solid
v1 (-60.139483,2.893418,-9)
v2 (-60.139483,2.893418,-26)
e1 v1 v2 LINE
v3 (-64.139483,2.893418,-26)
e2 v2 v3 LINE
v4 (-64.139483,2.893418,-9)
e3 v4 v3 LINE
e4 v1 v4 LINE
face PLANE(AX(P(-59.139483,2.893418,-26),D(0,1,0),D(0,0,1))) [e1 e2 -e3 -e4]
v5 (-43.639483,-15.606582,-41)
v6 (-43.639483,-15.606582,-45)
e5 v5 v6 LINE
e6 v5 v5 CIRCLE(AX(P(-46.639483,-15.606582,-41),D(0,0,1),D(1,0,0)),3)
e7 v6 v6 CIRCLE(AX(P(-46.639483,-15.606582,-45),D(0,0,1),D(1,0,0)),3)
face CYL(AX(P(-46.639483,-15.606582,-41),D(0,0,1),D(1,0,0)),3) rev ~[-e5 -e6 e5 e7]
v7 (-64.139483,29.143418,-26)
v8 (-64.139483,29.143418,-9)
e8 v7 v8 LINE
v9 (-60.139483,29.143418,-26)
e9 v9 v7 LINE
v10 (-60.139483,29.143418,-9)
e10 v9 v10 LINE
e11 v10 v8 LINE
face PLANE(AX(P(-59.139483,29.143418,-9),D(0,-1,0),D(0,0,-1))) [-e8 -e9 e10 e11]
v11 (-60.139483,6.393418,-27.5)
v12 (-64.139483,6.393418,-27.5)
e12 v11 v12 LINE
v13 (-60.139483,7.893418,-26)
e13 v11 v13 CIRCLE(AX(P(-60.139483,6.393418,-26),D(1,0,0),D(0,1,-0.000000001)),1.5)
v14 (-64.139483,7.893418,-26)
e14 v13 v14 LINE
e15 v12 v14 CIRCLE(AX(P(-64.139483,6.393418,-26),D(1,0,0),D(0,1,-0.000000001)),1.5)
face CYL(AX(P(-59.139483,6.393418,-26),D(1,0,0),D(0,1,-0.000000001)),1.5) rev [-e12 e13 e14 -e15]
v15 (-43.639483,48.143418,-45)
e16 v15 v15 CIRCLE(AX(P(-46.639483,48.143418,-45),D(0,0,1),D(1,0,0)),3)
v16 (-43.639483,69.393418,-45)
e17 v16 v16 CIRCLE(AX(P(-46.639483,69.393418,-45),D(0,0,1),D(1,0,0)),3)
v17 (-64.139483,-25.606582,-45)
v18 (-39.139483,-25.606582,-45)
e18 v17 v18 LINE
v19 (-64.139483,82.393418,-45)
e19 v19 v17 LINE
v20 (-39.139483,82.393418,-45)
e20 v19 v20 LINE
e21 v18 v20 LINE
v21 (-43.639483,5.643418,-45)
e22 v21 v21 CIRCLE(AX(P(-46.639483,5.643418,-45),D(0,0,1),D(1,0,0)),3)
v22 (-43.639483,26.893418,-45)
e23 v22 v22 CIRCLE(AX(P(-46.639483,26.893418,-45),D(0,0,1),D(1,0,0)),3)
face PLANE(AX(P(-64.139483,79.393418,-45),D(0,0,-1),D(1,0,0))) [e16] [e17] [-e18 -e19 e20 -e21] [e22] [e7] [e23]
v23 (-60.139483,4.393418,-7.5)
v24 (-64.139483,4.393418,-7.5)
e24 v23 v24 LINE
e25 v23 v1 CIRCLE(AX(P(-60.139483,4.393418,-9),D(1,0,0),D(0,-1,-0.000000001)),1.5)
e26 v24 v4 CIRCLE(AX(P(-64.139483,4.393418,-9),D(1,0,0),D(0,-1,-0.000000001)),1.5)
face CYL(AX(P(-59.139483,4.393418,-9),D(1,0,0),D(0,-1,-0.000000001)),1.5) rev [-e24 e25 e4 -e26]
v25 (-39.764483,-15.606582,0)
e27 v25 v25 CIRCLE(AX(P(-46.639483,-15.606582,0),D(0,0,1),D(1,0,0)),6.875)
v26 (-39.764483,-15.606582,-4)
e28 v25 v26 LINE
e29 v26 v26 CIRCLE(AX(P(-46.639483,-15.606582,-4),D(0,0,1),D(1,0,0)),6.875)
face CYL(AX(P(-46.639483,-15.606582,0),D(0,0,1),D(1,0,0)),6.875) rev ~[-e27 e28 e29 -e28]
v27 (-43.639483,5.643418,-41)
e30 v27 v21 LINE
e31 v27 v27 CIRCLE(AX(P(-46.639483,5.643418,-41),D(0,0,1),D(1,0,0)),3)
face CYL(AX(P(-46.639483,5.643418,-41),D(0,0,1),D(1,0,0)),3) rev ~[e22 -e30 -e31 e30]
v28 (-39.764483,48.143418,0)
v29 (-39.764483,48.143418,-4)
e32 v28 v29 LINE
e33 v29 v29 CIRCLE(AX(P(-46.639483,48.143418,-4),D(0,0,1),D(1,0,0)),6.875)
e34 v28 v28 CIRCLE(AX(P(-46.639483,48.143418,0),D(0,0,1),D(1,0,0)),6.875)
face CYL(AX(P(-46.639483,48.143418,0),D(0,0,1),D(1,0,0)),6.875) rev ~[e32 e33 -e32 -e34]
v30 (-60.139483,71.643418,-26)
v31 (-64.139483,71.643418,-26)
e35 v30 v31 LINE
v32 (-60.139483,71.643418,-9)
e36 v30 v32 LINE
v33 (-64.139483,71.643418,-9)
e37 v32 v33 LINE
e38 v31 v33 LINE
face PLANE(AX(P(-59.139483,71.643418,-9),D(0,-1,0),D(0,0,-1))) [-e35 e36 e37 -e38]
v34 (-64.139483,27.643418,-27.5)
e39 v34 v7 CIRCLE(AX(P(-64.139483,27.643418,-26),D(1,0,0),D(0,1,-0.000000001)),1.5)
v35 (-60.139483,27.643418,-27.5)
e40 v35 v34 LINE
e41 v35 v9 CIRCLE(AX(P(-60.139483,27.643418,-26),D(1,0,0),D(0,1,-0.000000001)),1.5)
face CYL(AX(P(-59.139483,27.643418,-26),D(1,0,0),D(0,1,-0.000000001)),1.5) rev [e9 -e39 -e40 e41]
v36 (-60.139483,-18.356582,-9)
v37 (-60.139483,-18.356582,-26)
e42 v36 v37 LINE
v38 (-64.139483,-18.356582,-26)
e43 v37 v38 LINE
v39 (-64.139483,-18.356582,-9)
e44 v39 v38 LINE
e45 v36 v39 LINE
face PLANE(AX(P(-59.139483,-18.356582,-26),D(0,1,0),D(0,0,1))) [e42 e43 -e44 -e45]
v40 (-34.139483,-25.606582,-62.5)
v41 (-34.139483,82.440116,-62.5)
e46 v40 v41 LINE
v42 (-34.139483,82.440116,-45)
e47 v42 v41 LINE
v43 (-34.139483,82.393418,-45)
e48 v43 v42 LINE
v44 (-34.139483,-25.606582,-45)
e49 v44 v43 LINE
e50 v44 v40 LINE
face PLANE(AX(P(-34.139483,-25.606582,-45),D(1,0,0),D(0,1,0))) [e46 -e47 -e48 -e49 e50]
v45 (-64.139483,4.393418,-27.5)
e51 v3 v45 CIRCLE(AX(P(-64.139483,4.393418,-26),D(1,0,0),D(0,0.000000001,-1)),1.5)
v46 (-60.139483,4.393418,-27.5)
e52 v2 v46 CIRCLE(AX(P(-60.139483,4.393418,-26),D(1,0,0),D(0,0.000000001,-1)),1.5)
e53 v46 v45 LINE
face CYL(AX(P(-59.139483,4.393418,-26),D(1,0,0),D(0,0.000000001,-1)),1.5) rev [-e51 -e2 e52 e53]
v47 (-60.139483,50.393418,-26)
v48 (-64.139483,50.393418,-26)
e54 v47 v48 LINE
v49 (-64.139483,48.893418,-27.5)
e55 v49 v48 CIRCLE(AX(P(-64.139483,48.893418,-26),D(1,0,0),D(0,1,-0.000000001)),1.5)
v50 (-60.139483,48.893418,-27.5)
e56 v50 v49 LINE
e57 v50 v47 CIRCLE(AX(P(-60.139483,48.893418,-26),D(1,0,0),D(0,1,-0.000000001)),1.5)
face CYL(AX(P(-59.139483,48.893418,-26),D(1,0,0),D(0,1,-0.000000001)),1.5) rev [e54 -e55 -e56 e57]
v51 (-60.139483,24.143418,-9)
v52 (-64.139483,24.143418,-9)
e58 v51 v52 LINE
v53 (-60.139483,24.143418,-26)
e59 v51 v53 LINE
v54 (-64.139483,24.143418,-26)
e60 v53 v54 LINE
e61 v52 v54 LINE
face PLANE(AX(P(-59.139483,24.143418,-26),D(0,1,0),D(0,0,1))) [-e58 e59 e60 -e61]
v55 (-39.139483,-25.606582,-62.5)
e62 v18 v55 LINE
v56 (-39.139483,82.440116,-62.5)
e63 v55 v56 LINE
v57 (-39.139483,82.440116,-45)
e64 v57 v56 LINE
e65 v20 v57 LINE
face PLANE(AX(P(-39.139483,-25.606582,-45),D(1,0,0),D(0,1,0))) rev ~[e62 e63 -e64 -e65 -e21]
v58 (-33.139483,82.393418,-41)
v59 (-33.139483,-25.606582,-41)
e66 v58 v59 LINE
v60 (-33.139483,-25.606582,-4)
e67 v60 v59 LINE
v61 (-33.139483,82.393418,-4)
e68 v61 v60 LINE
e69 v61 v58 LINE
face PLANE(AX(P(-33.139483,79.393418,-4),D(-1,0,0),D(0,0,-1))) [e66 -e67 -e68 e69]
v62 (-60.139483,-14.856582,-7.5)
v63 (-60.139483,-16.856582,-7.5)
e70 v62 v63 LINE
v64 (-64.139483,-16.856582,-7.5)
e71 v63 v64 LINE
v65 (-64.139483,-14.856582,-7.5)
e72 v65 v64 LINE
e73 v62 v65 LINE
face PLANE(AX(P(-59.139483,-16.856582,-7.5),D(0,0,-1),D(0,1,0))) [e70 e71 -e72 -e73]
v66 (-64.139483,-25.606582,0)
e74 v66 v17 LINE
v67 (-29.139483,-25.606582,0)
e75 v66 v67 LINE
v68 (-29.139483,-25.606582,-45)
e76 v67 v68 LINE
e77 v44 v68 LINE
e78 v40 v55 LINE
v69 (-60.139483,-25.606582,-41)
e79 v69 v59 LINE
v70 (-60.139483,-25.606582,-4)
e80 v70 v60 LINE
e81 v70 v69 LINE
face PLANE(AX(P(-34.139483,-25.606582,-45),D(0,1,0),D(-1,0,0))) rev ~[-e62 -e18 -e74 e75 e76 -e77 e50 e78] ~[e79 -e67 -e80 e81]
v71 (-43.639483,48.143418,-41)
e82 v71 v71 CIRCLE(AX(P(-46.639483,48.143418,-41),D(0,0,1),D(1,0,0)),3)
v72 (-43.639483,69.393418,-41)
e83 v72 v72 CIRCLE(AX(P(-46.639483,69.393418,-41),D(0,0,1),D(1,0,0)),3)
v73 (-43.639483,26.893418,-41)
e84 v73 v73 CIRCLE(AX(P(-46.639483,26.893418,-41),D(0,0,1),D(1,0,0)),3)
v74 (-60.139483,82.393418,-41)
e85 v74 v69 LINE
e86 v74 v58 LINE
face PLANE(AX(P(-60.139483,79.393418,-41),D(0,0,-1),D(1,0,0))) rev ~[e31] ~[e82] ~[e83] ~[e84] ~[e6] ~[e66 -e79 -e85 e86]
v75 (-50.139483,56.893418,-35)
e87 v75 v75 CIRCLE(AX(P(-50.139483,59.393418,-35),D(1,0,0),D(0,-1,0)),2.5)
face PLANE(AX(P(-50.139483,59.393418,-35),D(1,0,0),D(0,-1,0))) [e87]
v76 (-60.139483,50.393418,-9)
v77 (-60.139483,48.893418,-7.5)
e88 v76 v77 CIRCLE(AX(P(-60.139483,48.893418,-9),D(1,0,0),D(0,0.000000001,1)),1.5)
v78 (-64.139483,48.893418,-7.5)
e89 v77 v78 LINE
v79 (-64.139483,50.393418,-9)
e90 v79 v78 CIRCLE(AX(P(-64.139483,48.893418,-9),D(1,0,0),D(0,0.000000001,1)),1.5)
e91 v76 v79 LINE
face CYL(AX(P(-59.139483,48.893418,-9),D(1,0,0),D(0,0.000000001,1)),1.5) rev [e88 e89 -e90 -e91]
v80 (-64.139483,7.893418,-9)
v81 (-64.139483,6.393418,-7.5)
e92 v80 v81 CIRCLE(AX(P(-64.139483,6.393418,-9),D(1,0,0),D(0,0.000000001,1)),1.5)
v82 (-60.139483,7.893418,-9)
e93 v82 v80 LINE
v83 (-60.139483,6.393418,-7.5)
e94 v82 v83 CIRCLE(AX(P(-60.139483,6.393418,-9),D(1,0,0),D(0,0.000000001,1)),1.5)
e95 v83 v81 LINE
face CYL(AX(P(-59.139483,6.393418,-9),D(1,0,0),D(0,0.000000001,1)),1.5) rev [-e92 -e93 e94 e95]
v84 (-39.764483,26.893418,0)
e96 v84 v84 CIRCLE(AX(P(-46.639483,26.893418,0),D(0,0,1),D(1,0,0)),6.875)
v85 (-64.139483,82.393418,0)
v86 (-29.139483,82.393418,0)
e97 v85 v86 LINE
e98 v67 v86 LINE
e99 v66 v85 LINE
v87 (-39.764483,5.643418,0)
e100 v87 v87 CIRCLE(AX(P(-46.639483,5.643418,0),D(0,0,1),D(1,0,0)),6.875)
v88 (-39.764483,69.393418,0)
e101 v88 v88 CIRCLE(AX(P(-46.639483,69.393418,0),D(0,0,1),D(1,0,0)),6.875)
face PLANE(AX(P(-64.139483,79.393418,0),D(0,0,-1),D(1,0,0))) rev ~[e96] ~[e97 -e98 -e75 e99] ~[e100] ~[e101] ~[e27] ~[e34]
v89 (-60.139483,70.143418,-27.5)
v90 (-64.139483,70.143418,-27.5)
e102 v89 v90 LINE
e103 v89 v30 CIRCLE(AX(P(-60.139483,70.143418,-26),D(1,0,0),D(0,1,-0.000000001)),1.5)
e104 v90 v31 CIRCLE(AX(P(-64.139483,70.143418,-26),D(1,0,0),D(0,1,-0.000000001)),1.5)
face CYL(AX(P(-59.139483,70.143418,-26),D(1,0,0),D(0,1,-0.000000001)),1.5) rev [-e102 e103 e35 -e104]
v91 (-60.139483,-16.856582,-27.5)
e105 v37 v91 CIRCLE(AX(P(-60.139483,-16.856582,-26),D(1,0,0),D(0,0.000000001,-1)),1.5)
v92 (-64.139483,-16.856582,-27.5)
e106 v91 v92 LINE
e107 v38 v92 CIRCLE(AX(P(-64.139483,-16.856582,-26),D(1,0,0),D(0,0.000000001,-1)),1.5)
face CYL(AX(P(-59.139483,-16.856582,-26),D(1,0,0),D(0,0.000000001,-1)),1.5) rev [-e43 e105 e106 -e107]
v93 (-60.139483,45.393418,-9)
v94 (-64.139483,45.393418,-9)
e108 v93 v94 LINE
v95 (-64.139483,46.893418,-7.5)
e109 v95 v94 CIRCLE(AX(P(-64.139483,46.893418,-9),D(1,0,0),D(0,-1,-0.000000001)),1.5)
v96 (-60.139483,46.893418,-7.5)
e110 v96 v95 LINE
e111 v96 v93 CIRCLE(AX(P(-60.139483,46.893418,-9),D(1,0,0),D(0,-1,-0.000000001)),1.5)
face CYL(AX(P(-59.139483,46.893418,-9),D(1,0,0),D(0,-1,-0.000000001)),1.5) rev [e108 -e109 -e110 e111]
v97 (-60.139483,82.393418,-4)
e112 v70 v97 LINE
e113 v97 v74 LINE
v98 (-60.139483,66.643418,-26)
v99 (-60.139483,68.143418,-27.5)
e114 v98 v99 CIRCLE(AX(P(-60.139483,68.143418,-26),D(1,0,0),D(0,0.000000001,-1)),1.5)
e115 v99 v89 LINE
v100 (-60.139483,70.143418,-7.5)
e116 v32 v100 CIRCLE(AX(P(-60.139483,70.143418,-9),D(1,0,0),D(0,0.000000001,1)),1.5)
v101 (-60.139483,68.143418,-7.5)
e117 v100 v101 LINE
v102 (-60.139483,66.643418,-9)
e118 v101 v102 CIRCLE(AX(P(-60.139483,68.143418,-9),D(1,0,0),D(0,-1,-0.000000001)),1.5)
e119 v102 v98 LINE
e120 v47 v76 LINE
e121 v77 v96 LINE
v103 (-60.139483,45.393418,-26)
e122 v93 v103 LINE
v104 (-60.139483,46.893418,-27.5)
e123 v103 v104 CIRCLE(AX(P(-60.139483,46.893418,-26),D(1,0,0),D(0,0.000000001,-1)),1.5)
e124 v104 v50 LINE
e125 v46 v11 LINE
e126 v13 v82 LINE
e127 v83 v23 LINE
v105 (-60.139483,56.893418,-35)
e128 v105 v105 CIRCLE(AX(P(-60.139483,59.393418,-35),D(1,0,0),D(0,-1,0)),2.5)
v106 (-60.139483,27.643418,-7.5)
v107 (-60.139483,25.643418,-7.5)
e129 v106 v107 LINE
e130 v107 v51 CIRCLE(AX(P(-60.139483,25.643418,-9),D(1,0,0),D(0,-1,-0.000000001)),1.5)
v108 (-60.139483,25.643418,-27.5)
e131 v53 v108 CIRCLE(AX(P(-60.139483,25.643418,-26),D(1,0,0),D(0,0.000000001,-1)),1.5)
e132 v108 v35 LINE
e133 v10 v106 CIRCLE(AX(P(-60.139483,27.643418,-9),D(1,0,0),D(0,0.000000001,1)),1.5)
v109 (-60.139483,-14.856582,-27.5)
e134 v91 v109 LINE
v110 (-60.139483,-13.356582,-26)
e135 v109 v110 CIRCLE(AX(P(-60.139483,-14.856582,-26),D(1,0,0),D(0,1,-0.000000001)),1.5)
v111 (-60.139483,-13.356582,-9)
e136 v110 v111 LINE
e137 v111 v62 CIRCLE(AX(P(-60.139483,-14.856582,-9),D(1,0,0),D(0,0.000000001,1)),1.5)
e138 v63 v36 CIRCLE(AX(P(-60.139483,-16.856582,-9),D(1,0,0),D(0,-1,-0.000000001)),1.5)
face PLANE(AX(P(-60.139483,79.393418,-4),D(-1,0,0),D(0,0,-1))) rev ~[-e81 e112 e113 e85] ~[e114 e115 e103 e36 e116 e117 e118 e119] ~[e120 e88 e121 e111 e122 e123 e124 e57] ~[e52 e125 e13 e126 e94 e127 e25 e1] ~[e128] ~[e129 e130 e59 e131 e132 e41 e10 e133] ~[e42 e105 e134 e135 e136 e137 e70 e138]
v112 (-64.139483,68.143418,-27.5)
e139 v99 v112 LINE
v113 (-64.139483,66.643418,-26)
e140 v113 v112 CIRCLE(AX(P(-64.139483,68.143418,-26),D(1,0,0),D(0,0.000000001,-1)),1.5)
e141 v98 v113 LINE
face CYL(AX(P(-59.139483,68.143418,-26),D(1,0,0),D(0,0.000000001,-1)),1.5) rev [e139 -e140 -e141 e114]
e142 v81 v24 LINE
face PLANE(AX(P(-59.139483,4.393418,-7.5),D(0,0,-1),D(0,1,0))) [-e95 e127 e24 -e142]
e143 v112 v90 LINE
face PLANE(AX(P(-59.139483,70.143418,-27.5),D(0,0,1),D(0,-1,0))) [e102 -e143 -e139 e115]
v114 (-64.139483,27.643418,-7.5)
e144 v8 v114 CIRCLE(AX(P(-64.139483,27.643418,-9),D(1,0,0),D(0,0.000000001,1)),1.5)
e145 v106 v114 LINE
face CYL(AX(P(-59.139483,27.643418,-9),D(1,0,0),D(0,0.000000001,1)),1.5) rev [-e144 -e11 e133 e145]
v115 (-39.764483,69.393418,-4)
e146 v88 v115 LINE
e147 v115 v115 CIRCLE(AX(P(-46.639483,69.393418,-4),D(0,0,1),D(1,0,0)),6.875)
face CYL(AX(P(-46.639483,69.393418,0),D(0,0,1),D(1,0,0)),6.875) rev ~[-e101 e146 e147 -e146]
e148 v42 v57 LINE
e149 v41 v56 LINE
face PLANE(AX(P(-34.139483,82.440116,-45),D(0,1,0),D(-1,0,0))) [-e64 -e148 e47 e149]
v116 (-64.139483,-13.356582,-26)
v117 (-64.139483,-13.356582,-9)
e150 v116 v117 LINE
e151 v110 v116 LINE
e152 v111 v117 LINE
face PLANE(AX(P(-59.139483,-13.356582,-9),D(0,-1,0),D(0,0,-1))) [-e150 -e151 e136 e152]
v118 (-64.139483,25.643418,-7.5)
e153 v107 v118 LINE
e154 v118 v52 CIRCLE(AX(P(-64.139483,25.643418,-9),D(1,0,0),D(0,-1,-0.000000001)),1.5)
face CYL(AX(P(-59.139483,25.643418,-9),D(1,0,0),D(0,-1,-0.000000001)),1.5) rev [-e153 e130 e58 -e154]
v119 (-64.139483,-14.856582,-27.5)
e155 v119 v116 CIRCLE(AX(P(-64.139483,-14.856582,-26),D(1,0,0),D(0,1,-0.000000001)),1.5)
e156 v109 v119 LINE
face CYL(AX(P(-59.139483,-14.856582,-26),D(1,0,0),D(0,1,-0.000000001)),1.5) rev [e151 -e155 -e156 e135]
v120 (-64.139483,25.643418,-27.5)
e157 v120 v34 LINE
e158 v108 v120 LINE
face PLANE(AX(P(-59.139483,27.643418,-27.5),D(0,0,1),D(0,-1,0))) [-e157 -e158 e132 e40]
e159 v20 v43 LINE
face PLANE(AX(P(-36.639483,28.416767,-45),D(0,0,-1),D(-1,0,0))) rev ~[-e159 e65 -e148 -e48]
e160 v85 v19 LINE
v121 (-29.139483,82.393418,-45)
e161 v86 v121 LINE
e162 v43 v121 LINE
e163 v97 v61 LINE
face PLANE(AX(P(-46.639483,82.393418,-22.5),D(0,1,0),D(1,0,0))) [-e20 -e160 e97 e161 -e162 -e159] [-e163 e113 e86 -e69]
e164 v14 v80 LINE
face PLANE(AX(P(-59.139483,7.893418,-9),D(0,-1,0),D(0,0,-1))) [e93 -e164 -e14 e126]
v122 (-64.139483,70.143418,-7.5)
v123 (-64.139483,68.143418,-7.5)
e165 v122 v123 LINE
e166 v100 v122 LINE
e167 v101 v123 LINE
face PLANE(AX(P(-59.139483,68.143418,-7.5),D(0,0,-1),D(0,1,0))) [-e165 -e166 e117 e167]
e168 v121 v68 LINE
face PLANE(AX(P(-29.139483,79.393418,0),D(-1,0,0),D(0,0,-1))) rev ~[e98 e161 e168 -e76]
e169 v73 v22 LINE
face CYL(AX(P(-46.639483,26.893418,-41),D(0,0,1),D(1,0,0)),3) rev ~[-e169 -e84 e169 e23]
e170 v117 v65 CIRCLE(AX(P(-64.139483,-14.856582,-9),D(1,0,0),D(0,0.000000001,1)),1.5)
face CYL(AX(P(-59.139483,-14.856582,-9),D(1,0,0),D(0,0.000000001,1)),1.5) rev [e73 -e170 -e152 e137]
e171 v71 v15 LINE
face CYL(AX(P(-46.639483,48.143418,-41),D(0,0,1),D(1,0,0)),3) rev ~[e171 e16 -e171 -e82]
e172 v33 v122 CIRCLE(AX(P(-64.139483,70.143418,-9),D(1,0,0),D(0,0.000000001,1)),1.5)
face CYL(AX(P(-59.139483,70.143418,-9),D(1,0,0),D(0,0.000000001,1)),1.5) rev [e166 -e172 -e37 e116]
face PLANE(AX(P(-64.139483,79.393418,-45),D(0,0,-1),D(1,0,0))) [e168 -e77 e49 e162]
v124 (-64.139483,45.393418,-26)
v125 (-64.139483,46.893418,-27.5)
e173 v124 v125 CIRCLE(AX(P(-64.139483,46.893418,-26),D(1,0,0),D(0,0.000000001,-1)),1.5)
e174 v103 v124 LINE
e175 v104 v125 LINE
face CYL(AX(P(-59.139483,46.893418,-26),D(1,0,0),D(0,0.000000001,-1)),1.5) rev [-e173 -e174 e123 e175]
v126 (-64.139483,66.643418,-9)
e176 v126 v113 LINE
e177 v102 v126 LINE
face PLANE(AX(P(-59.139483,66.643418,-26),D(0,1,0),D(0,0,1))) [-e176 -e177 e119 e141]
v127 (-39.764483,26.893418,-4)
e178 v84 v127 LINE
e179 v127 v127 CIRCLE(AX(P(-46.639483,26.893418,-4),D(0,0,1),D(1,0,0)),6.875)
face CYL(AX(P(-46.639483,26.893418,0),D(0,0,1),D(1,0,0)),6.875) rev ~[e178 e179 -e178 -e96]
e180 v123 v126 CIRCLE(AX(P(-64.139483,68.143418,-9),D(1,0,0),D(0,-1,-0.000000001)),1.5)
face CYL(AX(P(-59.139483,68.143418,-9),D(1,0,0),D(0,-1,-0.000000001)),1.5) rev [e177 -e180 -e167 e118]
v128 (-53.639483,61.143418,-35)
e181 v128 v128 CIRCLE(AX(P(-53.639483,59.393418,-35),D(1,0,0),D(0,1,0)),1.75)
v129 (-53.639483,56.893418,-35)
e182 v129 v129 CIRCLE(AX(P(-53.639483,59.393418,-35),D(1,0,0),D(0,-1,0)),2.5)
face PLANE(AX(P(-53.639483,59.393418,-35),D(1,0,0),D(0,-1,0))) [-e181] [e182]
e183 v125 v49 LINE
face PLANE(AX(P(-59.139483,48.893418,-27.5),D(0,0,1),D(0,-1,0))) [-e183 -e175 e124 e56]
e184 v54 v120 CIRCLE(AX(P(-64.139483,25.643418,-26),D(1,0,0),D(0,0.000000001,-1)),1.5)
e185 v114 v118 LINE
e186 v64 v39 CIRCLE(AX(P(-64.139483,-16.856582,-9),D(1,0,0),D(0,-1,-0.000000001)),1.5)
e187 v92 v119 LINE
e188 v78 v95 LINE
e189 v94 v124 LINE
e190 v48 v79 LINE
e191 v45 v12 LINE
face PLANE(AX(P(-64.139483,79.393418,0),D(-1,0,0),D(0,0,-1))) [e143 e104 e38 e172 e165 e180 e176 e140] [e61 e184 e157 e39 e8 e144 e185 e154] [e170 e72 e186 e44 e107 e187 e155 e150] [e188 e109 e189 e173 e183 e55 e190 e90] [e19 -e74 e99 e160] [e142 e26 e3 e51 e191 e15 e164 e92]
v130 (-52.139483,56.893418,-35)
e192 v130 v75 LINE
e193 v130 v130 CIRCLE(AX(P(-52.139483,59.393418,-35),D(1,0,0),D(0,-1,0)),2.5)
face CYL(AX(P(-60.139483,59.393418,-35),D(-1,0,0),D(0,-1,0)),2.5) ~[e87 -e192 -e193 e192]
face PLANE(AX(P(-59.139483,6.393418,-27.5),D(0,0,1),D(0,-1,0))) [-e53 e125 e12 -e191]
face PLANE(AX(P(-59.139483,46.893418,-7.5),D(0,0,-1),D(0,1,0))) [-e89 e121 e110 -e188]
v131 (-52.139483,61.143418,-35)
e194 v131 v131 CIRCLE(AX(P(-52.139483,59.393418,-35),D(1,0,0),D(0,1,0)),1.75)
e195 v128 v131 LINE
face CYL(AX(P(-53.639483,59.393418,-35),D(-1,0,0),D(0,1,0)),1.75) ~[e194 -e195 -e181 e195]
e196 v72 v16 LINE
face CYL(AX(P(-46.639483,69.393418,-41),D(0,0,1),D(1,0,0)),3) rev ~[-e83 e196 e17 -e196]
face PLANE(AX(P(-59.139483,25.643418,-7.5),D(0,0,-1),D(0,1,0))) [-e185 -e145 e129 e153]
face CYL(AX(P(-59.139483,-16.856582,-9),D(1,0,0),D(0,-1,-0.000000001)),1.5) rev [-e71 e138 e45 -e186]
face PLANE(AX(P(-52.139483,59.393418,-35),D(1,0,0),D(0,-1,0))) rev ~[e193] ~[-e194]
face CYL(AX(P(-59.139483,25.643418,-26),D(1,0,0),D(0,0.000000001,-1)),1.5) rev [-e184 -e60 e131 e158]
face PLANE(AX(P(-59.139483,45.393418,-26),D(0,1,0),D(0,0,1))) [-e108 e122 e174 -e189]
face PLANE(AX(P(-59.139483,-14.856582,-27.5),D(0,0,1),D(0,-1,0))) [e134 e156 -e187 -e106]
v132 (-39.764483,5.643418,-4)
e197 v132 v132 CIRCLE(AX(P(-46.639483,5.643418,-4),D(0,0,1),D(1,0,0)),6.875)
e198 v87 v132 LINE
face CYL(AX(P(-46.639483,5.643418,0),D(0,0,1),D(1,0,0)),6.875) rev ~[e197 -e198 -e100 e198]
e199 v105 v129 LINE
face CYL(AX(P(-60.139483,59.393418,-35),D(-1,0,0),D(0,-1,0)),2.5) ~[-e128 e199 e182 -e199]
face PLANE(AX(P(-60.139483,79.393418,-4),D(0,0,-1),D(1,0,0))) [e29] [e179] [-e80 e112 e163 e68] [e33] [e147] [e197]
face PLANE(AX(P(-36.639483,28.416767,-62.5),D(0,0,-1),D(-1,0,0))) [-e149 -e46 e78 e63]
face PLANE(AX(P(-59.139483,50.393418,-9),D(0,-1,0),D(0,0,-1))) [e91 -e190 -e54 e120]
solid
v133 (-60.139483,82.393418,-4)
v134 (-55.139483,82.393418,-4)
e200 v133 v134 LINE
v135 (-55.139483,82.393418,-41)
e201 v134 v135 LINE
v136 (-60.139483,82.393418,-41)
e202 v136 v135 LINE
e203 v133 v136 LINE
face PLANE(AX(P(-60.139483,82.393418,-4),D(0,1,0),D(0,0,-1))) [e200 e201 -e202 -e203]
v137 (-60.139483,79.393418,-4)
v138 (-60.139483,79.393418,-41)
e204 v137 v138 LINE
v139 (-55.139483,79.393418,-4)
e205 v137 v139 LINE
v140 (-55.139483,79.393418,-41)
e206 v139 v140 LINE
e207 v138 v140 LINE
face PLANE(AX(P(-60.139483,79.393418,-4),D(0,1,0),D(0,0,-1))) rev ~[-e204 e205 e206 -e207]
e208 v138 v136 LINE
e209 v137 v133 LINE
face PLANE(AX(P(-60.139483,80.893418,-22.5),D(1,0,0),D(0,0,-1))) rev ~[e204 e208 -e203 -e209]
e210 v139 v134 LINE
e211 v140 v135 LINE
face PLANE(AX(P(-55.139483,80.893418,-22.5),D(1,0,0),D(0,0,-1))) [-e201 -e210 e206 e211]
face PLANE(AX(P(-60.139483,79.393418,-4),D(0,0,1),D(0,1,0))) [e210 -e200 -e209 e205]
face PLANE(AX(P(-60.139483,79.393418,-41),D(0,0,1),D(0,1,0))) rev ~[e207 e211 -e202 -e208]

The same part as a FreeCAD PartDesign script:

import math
import FreeCAD as App
import Part
import Sketcher
from FreeCAD import Vector


def add_polygon(sketch, points):
    """Adds a closed chain of lines whose ends are joined by coincident constraints."""
    first, n = sketch.GeometryCount, len(points)
    for a, b in zip(points, points[1:] + points[:1]):
        sketch.addGeometry(Part.LineSegment(App.Vector(*a, 0), App.Vector(*b, 0)), False)
    for i in range(n):
        sketch.addConstraint(Sketcher.Constraint("Coincident", first + i, 2, first + (i + 1) % n, 1))

doc = App.newDocument("Part")
body = doc.addObject("PartDesign::Body", "Body")

sketch1 = body.newObject("Sketcher::SketchObject", "Sketch")
sketch1.AttachmentSupport = (doc.getObject("XY_Plane"), [""])
sketch1.MapMode = "FlatFace"
add_polygon(sketch1, [(-64, 79), (-64, -26), (-29, -26), (-29, 79)])
sketch1.addConstraint(Sketcher.Constraint("Vertical", 0))
sketch1.addConstraint(Sketcher.Constraint("Horizontal", 1))
sketch1.addConstraint(Sketcher.Constraint("Vertical", 2))
sketch1.addConstraint(Sketcher.Constraint("Horizontal", 3))
sketch1.addConstraint(Sketcher.Constraint("DistanceX", 1, 1, 1, 2, 35.0))
sketch1.addConstraint(Sketcher.Constraint("DistanceY", 0, 2, 0, 1, 105.0))
sketch1.addConstraint(Sketcher.Constraint("DistanceY", 0, 2, -1, 1, 25.606582))
sketch1.addConstraint(Sketcher.Constraint("DistanceX", 0, 2, -1, 1, 64.139483))
pad1 = body.newObject("PartDesign::Pad", "Pad")
pad1.Profile = sketch1
pad1.Length = 45
pad1.Reversed = True

sketch2 = body.newObject("Sketcher::SketchObject", "Sketch001")
sketch2.AttachmentSupport = (doc.getObject("XZ_Plane"), [""])
sketch2.MapMode = "FlatFace"
sketch2.AttachmentOffset = App.Placement(Vector(0, 0, -79.393418), App.Rotation())
add_polygon(sketch2, [(-60, -41), (-60, -4), (-33, -4), (-33, -41)])
sketch2.addConstraint(Sketcher.Constraint("Vertical", 0))
sketch2.addConstraint(Sketcher.Constraint("Horizontal", 1))
sketch2.addConstraint(Sketcher.Constraint("Vertical", 2))
sketch2.addConstraint(Sketcher.Constraint("Horizontal", 3))
sketch2.addConstraint(Sketcher.Constraint("DistanceX", 1, 1, 1, 2, 27.0))
sketch2.addConstraint(Sketcher.Constraint("DistanceY", 0, 1, 0, 2, 37.0))
sketch2.addConstraint(Sketcher.Constraint("DistanceY", 0, 2, -1, 1, 4.0))
sketch2.addConstraint(Sketcher.Constraint("DistanceX", 0, 2, -1, 1, 60.139483))
pocket1 = body.newObject("PartDesign::Pocket", "Pocket")
pocket1.Profile = sketch2
pocket1.Type = "UpToFirst"
pocket1.Reversed = True

sketch3 = body.newObject("Sketcher::SketchObject", "Sketch002")
sketch3.AttachmentSupport = (doc.getObject("XY_Plane"), [""])
sketch3.MapMode = "FlatFace"
sketch3.addGeometry(Part.Circle(Vector(-47, 69, 0), Vector(0, 0, 1), 7), False)
sketch3.addGeometry(Part.Circle(Vector(-47, 48, 0), Vector(0, 0, 1), 7), False)
sketch3.addGeometry(Part.Circle(Vector(-47, 27, 0), Vector(0, 0, 1), 7), False)
sketch3.addGeometry(Part.Circle(Vector(-47, 6, 0), Vector(0, 0, 1), 7), False)
sketch3.addGeometry(Part.Circle(Vector(-47, -16, 0), Vector(0, 0, 1), 7), False)
sketch3.addConstraint(Sketcher.Constraint("Equal", 0, 1))
sketch3.addConstraint(Sketcher.Constraint("Equal", 1, 2))
sketch3.addConstraint(Sketcher.Constraint("Equal", 2, 3))
sketch3.addConstraint(Sketcher.Constraint("Equal", 3, 4))
sketch3.addConstraint(Sketcher.Constraint("Vertical", 0, 3, 1, 3))
sketch3.addConstraint(Sketcher.Constraint("Vertical", 1, 3, 2, 3))
sketch3.addConstraint(Sketcher.Constraint("Vertical", 2, 3, 3, 3))
sketch3.addConstraint(Sketcher.Constraint("Vertical", 3, 3, 4, 3))
sketch3.addConstraint(Sketcher.Constraint("Diameter", 0, 13.75))
sketch3.addConstraint(Sketcher.Constraint("DistanceY", 4, 3, 0, 3, 85.0))
sketch3.addConstraint(Sketcher.Constraint("DistanceY", 2, 3, 0, 3, 42.5))
sketch3.addConstraint(Sketcher.Constraint("DistanceY", 3, 3, 1, 3, 42.5))
sketch3.addConstraint(Sketcher.Constraint("DistanceY", 1, 3, 0, 3, 21.25))
sketch3.addConstraint(Sketcher.Constraint("DistanceY", -1, 1, 0, 3, 69.393418))
sketch3.addConstraint(Sketcher.Constraint("DistanceX", 0, 3, -1, 1, 46.639483))
pocket2 = body.newObject("PartDesign::Pocket", "Pocket001")
pocket2.Profile = sketch3
pocket2.Length = 10

sketch4 = body.newObject("Sketcher::SketchObject", "Sketch003")
sketch4.AttachmentSupport = (doc.getObject("YZ_Plane"), [""])
sketch4.MapMode = "FlatFace"
sketch4.AttachmentOffset = App.Placement(Vector(0, 0, -60.139483), App.Rotation())
sketch4.addGeometry(Part.Circle(Vector(59.4, -35, 0), Vector(0, 0, 1), 2.5), False)
sketch4.addConstraint(Sketcher.Constraint("Diameter", 0, 5.0))
sketch4.addConstraint(Sketcher.Constraint("DistanceY", 0, 3, -1, 1, 35.0))
sketch4.addConstraint(Sketcher.Constraint("DistanceX", -1, 1, 0, 3, 59.393418))
pad2 = body.newObject("PartDesign::Pad", "Pad001")
pad2.Profile = sketch4
pad2.Length = 10

sketch5 = body.newObject("Sketcher::SketchObject", "Sketch004")
sketch5.AttachmentSupport = (doc.getObject("YZ_Plane"), [""])
sketch5.MapMode = "FlatFace"
sketch5.AttachmentOffset = App.Placement(Vector(0, 0, -53.639483), App.Rotation())
sketch5.addGeometry(Part.Circle(Vector(59.4, -35, 0), Vector(0, 0, 1), 2.5), False)
sketch5.addGeometry(Part.Circle(Vector(59.4, -35, 0), Vector(0, 0, 1), 1.8), False)
sketch5.addConstraint(Sketcher.Constraint("Coincident", 1, 3, 0, 3))
sketch5.addConstraint(Sketcher.Constraint("Diameter", 0, 5.0))
sketch5.addConstraint(Sketcher.Constraint("Diameter", 1, 3.5))
sketch5.addConstraint(Sketcher.Constraint("DistanceY", 0, 3, -1, 1, 35.0))
sketch5.addConstraint(Sketcher.Constraint("DistanceX", -1, 1, 0, 3, 59.393418))
pocket3 = body.newObject("PartDesign::Pocket", "Pocket002")
pocket3.Profile = sketch5
pocket3.Length = 1.5
pocket3.Reversed = True

sketch6 = body.newObject("Sketcher::SketchObject", "Sketch005")
sketch6.AttachmentSupport = (doc.getObject("XZ_Plane"), [""])
sketch6.MapMode = "FlatFace"
sketch6.AttachmentOffset = App.Placement(Vector(0, 0, -79.393418), App.Rotation())
add_polygon(sketch6, [(-64, -45), (-64, 0), (-29, 0), (-29, -45)])
add_polygon(sketch6, [(-33, -4), (-60, -4), (-60, -41), (-33, -41)])
sketch6.addConstraint(Sketcher.Constraint("Vertical", 0))
sketch6.addConstraint(Sketcher.Constraint("Horizontal", 1))
sketch6.addConstraint(Sketcher.Constraint("Vertical", 2))
sketch6.addConstraint(Sketcher.Constraint("Horizontal", 3))
sketch6.addConstraint(Sketcher.Constraint("Horizontal", 4))
sketch6.addConstraint(Sketcher.Constraint("Vertical", 5))
sketch6.addConstraint(Sketcher.Constraint("Horizontal", 6))
sketch6.addConstraint(Sketcher.Constraint("Vertical", 7))
sketch6.addConstraint(Sketcher.Constraint("PointOnObject", 0, 2, -1))
sketch6.addConstraint(Sketcher.Constraint("DistanceX", 1, 1, 1, 2, 35.0))
sketch6.addConstraint(Sketcher.Constraint("DistanceX", 4, 2, 4, 1, 27.0))
sketch6.addConstraint(Sketcher.Constraint("DistanceY", 0, 1, 0, 2, 45.0))
sketch6.addConstraint(Sketcher.Constraint("DistanceY", 5, 2, 5, 1, 37.0))
sketch6.addConstraint(Sketcher.Constraint("DistanceY", 4, 2, -1, 1, 4.0))
sketch6.addConstraint(Sketcher.Constraint("DistanceX", 0, 2, 4, 2, 4.0))
sketch6.addConstraint(Sketcher.Constraint("DistanceX", 0, 2, -1, 1, 64.139483))
pad3 = body.newObject("PartDesign::Pad", "Pad002")
pad3.Profile = sketch6
pad3.Length = 3
pad3.Reversed = True

sketch7 = body.newObject("Sketcher::SketchObject", "Sketch006")
sketch7.AttachmentSupport = (doc.getObject("XY_Plane"), [""])
sketch7.MapMode = "FlatFace"
sketch7.AttachmentOffset = App.Placement(Vector(0, 0, -41), App.Rotation())
sketch7.addGeometry(Part.Circle(Vector(-46.6, 69.4, 0), Vector(0, 0, 1), 3), False)
sketch7.addGeometry(Part.Circle(Vector(-46.6, 48.1, 0), Vector(0, 0, 1), 3), False)
sketch7.addGeometry(Part.Circle(Vector(-46.6, 26.9, 0), Vector(0, 0, 1), 3), False)
sketch7.addGeometry(Part.Circle(Vector(-46.6, 5.6, 0), Vector(0, 0, 1), 3), False)
sketch7.addGeometry(Part.Circle(Vector(-46.6, -15.6, 0), Vector(0, 0, 1), 3), False)
sketch7.addConstraint(Sketcher.Constraint("Equal", 0, 1))
sketch7.addConstraint(Sketcher.Constraint("Equal", 1, 2))
sketch7.addConstraint(Sketcher.Constraint("Equal", 2, 3))
sketch7.addConstraint(Sketcher.Constraint("Equal", 3, 4))
sketch7.addConstraint(Sketcher.Constraint("Vertical", 0, 3, 1, 3))
sketch7.addConstraint(Sketcher.Constraint("Vertical", 1, 3, 2, 3))
sketch7.addConstraint(Sketcher.Constraint("Vertical", 2, 3, 3, 3))
sketch7.addConstraint(Sketcher.Constraint("Vertical", 3, 3, 4, 3))
sketch7.addConstraint(Sketcher.Constraint("Diameter", 0, 6.0))
sketch7.addConstraint(Sketcher.Constraint("DistanceY", 4, 3, 0, 3, 85.0))
sketch7.addConstraint(Sketcher.Constraint("DistanceY", 2, 3, 0, 3, 42.5))
sketch7.addConstraint(Sketcher.Constraint("DistanceY", 3, 3, 1, 3, 42.5))
sketch7.addConstraint(Sketcher.Constraint("DistanceY", 1, 3, 0, 3, 21.25))
sketch7.addConstraint(Sketcher.Constraint("DistanceY", -1, 1, 0, 3, 69.393418))
sketch7.addConstraint(Sketcher.Constraint("DistanceX", 0, 3, -1, 1, 46.639483))
pocket4 = body.newObject("PartDesign::Pocket", "Pocket003")
pocket4.Profile = sketch7
pocket4.Length = 10

sketch8 = body.newObject("Sketcher::SketchObject", "Sketch007")
sketch8.AttachmentSupport = (doc.getObject("YZ_Plane"), [""])
sketch8.MapMode = "FlatFace"
sketch8.AttachmentOffset = App.Placement(Vector(0, 0, -59.139483), App.Rotation())
sketch8.addGeometry(Part.LineSegment(Vector(7.9, -26, 0), Vector(7.9, -9, 0)), False)
sketch8.addGeometry(Part.ArcOfCircle(Part.Circle(Vector(6.4, -9, 0), Vector(0, 0, 1), 1.5), math.radians(0), math.radians(90)), False)
sketch8.addGeometry(Part.LineSegment(Vector(6.4, -7.5, 0), Vector(4.4, -7.5, 0)), False)
sketch8.addGeometry(Part.ArcOfCircle(Part.Circle(Vector(4.4, -9, 0), Vector(0, 0, 1), 1.5), math.radians(90), math.radians(180)), False)
sketch8.addGeometry(Part.LineSegment(Vector(2.9, -9, 0), Vector(2.9, -26, 0)), False)
sketch8.addGeometry(Part.ArcOfCircle(Part.Circle(Vector(4.4, -26, 0), Vector(0, 0, 1), 1.5), math.radians(180), math.radians(270)), False)
sketch8.addGeometry(Part.LineSegment(Vector(4.4, -27.5, 0), Vector(6.4, -27.5, 0)), False)
sketch8.addGeometry(Part.ArcOfCircle(Part.Circle(Vector(6.4, -26, 0), Vector(0, 0, 1), 1.5), math.radians(-90), math.radians(0)), False)
sketch8.addGeometry(Part.LineSegment(Vector(29.1, -26, 0), Vector(29.1, -9, 0)), False)
sketch8.addGeometry(Part.ArcOfCircle(Part.Circle(Vector(27.6, -9, 0), Vector(0, 0, 1), 1.5), math.radians(0), math.radians(90)), False)
sketch8.addGeometry(Part.LineSegment(Vector(27.6, -7.5, 0), Vector(25.6, -7.5, 0)), False)
sketch8.addGeometry(Part.ArcOfCircle(Part.Circle(Vector(25.6, -9, 0), Vector(0, 0, 1), 1.5), math.radians(90), math.radians(180)), False)
sketch8.addGeometry(Part.LineSegment(Vector(24.1, -9, 0), Vector(24.1, -26, 0)), False)
sketch8.addGeometry(Part.ArcOfCircle(Part.Circle(Vector(25.6, -26, 0), Vector(0, 0, 1), 1.5), math.radians(180), math.radians(270)), False)
sketch8.addGeometry(Part.LineSegment(Vector(25.6, -27.5, 0), Vector(27.6, -27.5, 0)), False)
sketch8.addGeometry(Part.ArcOfCircle(Part.Circle(Vector(27.6, -26, 0), Vector(0, 0, 1), 1.5), math.radians(-90), math.radians(0)), False)
sketch8.addGeometry(Part.LineSegment(Vector(50.4, -26, 0), Vector(50.4, -9, 0)), False)
sketch8.addGeometry(Part.ArcOfCircle(Part.Circle(Vector(48.9, -9, 0), Vector(0, 0, 1), 1.5), math.radians(0), math.radians(90)), False)
sketch8.addGeometry(Part.LineSegment(Vector(48.9, -7.5, 0), Vector(46.9, -7.5, 0)), False)
sketch8.addGeometry(Part.ArcOfCircle(Part.Circle(Vector(46.9, -9, 0), Vector(0, 0, 1), 1.5), math.radians(90), math.radians(180)), False)
sketch8.addGeometry(Part.LineSegment(Vector(45.4, -9, 0), Vector(45.4, -26, 0)), False)
sketch8.addGeometry(Part.ArcOfCircle(Part.Circle(Vector(46.9, -26, 0), Vector(0, 0, 1), 1.5), math.radians(180), math.radians(270)), False)
sketch8.addGeometry(Part.LineSegment(Vector(46.9, -27.5, 0), Vector(48.9, -27.5, 0)), False)
sketch8.addGeometry(Part.ArcOfCircle(Part.Circle(Vector(48.9, -26, 0), Vector(0, 0, 1), 1.5), math.radians(-90), math.radians(0)), False)
sketch8.addGeometry(Part.LineSegment(Vector(71.6, -26, 0), Vector(71.6, -9, 0)), False)
sketch8.addGeometry(Part.ArcOfCircle(Part.Circle(Vector(70.1, -9, 0), Vector(0, 0, 1), 1.5), math.radians(0), math.radians(90)), False)
sketch8.addGeometry(Part.LineSegment(Vector(70.1, -7.5, 0), Vector(68.1, -7.5, 0)), False)
sketch8.addGeometry(Part.ArcOfCircle(Part.Circle(Vector(68.1, -9, 0), Vector(0, 0, 1), 1.5), math.radians(90), math.radians(180)), False)
sketch8.addGeometry(Part.LineSegment(Vector(66.6, -9, 0), Vector(66.6, -26, 0)), False)
sketch8.addGeometry(Part.ArcOfCircle(Part.Circle(Vector(68.1, -26, 0), Vector(0, 0, 1), 1.5), math.radians(180), math.radians(270)), False)
sketch8.addGeometry(Part.LineSegment(Vector(68.1, -27.5, 0), Vector(70.1, -27.5, 0)), False)
sketch8.addGeometry(Part.ArcOfCircle(Part.Circle(Vector(70.1, -26, 0), Vector(0, 0, 1), 1.5), math.radians(-90), math.radians(0)), False)
sketch8.addGeometry(Part.LineSegment(Vector(-13.4, -26, 0), Vector(-13.4, -9, 0)), False)
sketch8.addGeometry(Part.ArcOfCircle(Part.Circle(Vector(-14.9, -9, 0), Vector(0, 0, 1), 1.5), math.radians(0), math.radians(90)), False)
sketch8.addGeometry(Part.LineSegment(Vector(-14.9, -7.5, 0), Vector(-16.9, -7.5, 0)), False)
sketch8.addGeometry(Part.ArcOfCircle(Part.Circle(Vector(-16.9, -9, 0), Vector(0, 0, 1), 1.5), math.radians(90), math.radians(180)), False)
sketch8.addGeometry(Part.LineSegment(Vector(-18.4, -9, 0), Vector(-18.4, -26, 0)), False)
sketch8.addGeometry(Part.ArcOfCircle(Part.Circle(Vector(-16.9, -26, 0), Vector(0, 0, 1), 1.5), math.radians(180), math.radians(270)), False)
sketch8.addGeometry(Part.LineSegment(Vector(-16.9, -27.5, 0), Vector(-14.9, -27.5, 0)), False)
sketch8.addGeometry(Part.ArcOfCircle(Part.Circle(Vector(-14.9, -26, 0), Vector(0, 0, 1), 1.5), math.radians(-90), math.radians(0)), False)
sketch8.addConstraint(Sketcher.Constraint("Tangent", 0, 2, 1, 1))
sketch8.addConstraint(Sketcher.Constraint("Tangent", 1, 2, 2, 1))
sketch8.addConstraint(Sketcher.Constraint("Tangent", 2, 2, 3, 1))
sketch8.addConstraint(Sketcher.Constraint("Tangent", 3, 2, 4, 1))
sketch8.addConstraint(Sketcher.Constraint("Tangent", 4, 2, 5, 1))
sketch8.addConstraint(Sketcher.Constraint("Tangent", 5, 2, 6, 1))
sketch8.addConstraint(Sketcher.Constraint("Tangent", 6, 2, 7, 1))
sketch8.addConstraint(Sketcher.Constraint("Tangent", 7, 2, 0, 1))
sketch8.addConstraint(Sketcher.Constraint("Tangent", 8, 2, 9, 1))
sketch8.addConstraint(Sketcher.Constraint("Tangent", 9, 2, 10, 1))
sketch8.addConstraint(Sketcher.Constraint("Tangent", 10, 2, 11, 1))
sketch8.addConstraint(Sketcher.Constraint("Tangent", 11, 2, 12, 1))
sketch8.addConstraint(Sketcher.Constraint("Tangent", 12, 2, 13, 1))
sketch8.addConstraint(Sketcher.Constraint("Tangent", 13, 2, 14, 1))
sketch8.addConstraint(Sketcher.Constraint("Tangent", 14, 2, 15, 1))
sketch8.addConstraint(Sketcher.Constraint("Tangent", 15, 2, 8, 1))
sketch8.addConstraint(Sketcher.Constraint("Tangent", 16, 2, 17, 1))
sketch8.addConstraint(Sketcher.Constraint("Tangent", 17, 2, 18, 1))
sketch8.addConstraint(Sketcher.Constraint("Tangent", 18, 2, 19, 1))
sketch8.addConstraint(Sketcher.Constraint("Tangent", 19, 2, 20, 1))
sketch8.addConstraint(Sketcher.Constraint("Tangent", 20, 2, 21, 1))
sketch8.addConstraint(Sketcher.Constraint("Tangent", 21, 2, 22, 1))
sketch8.addConstraint(Sketcher.Constraint("Tangent", 22, 2, 23, 1))
sketch8.addConstraint(Sketcher.Constraint("Tangent", 23, 2, 16, 1))
sketch8.addConstraint(Sketcher.Constraint("Tangent", 24, 2, 25, 1))
sketch8.addConstraint(Sketcher.Constraint("Tangent", 25, 2, 26, 1))
sketch8.addConstraint(Sketcher.Constraint("Tangent", 26, 2, 27, 1))
sketch8.addConstraint(Sketcher.Constraint("Tangent", 27, 2, 28, 1))
sketch8.addConstraint(Sketcher.Constraint("Tangent", 28, 2, 29, 1))
sketch8.addConstraint(Sketcher.Constraint("Tangent", 29, 2, 30, 1))
sketch8.addConstraint(Sketcher.Constraint("Tangent", 30, 2, 31, 1))
sketch8.addConstraint(Sketcher.Constraint("Tangent", 31, 2, 24, 1))
sketch8.addConstraint(Sketcher.Constraint("Tangent", 32, 2, 33, 1))
sketch8.addConstraint(Sketcher.Constraint("Tangent", 33, 2, 34, 1))
sketch8.addConstraint(Sketcher.Constraint("Tangent", 34, 2, 35, 1))
sketch8.addConstraint(Sketcher.Constraint("Tangent", 35, 2, 36, 1))
sketch8.addConstraint(Sketcher.Constraint("Tangent", 36, 2, 37, 1))
sketch8.addConstraint(Sketcher.Constraint("Tangent", 37, 2, 38, 1))
sketch8.addConstraint(Sketcher.Constraint("Tangent", 38, 2, 39, 1))
sketch8.addConstraint(Sketcher.Constraint("Tangent", 39, 2, 32, 1))
sketch8.addConstraint(Sketcher.Constraint("Vertical", 0))
sketch8.addConstraint(Sketcher.Constraint("Horizontal", 2))
sketch8.addConstraint(Sketcher.Constraint("Vertical", 4))
sketch8.addConstraint(Sketcher.Constraint("Horizontal", 6))
sketch8.addConstraint(Sketcher.Constraint("Vertical", 8))
sketch8.addConstraint(Sketcher.Constraint("Horizontal", 10))
sketch8.addConstraint(Sketcher.Constraint("Vertical", 12))
sketch8.addConstraint(Sketcher.Constraint("Horizontal", 14))
sketch8.addConstraint(Sketcher.Constraint("Vertical", 16))
sketch8.addConstraint(Sketcher.Constraint("Horizontal", 18))
sketch8.addConstraint(Sketcher.Constraint("Vertical", 20))
sketch8.addConstraint(Sketcher.Constraint("Horizontal", 22))
sketch8.addConstraint(Sketcher.Constraint("Vertical", 24))
sketch8.addConstraint(Sketcher.Constraint("Horizontal", 26))
sketch8.addConstraint(Sketcher.Constraint("Vertical", 28))
sketch8.addConstraint(Sketcher.Constraint("Horizontal", 30))
sketch8.addConstraint(Sketcher.Constraint("Vertical", 32))
sketch8.addConstraint(Sketcher.Constraint("Horizontal", 34))
sketch8.addConstraint(Sketcher.Constraint("Vertical", 36))
sketch8.addConstraint(Sketcher.Constraint("Horizontal", 38))
sketch8.addConstraint(Sketcher.Constraint("Equal", 1, 3))
sketch8.addConstraint(Sketcher.Constraint("Equal", 3, 5))
sketch8.addConstraint(Sketcher.Constraint("Equal", 5, 7))
sketch8.addConstraint(Sketcher.Constraint("Equal", 7, 9))
sketch8.addConstraint(Sketcher.Constraint("Equal", 9, 11))
sketch8.addConstraint(Sketcher.Constraint("Equal", 11, 13))
sketch8.addConstraint(Sketcher.Constraint("Equal", 13, 15))
sketch8.addConstraint(Sketcher.Constraint("Equal", 15, 17))
sketch8.addConstraint(Sketcher.Constraint("Equal", 17, 19))
sketch8.addConstraint(Sketcher.Constraint("Equal", 19, 21))
sketch8.addConstraint(Sketcher.Constraint("Equal", 21, 23))
sketch8.addConstraint(Sketcher.Constraint("Equal", 23, 25))
sketch8.addConstraint(Sketcher.Constraint("Equal", 25, 27))
sketch8.addConstraint(Sketcher.Constraint("Equal", 27, 29))
sketch8.addConstraint(Sketcher.Constraint("Equal", 29, 31))
sketch8.addConstraint(Sketcher.Constraint("Equal", 31, 33))
sketch8.addConstraint(Sketcher.Constraint("Equal", 33, 35))
sketch8.addConstraint(Sketcher.Constraint("Equal", 35, 37))
sketch8.addConstraint(Sketcher.Constraint("Equal", 37, 39))
sketch8.addConstraint(Sketcher.Constraint("Horizontal", 3, 3, 9, 3))
sketch8.addConstraint(Sketcher.Constraint("Horizontal", 7, 3, 13, 3))
sketch8.addConstraint(Sketcher.Constraint("Horizontal", 11, 3, 17, 3))
sketch8.addConstraint(Sketcher.Constraint("Horizontal", 15, 3, 21, 3))
sketch8.addConstraint(Sketcher.Constraint("Horizontal", 19, 3, 25, 3))
sketch8.addConstraint(Sketcher.Constraint("Horizontal", 23, 3, 29, 3))
sketch8.addConstraint(Sketcher.Constraint("Horizontal", 27, 3, 33, 3))
sketch8.addConstraint(Sketcher.Constraint("Horizontal", 31, 3, 37, 3))
sketch8.addConstraint(Sketcher.Constraint("Equal", 6, 10))
sketch8.addConstraint(Sketcher.Constraint("Equal", 14, 18))
sketch8.addConstraint(Sketcher.Constraint("Equal", 22, 26))
sketch8.addConstraint(Sketcher.Constraint("Equal", 30, 34))
sketch8.addConstraint(Sketcher.Constraint("Radius", 1, 1.5))
sketch8.addConstraint(Sketcher.Constraint("DistanceX", 2, 2, 2, 1, 2.0))
sketch8.addConstraint(Sketcher.Constraint("DistanceY", 0, 1, 0, 2, 17.0))
sketch8.addConstraint(Sketcher.Constraint("DistanceY", 1, 3, -1, 1, 9.0))
sketch8.addConstraint(Sketcher.Constraint("DistanceX", 1, 3, 17, 3, 42.5))
sketch8.addConstraint(Sketcher.Constraint("DistanceX", 9, 3, 25, 3, 42.5))
sketch8.addConstraint(Sketcher.Constraint("DistanceX", 33, 3, 11, 3, 40.5))
sketch8.addConstraint(Sketcher.Constraint("DistanceX", 1, 3, 9, 3, 21.25))
sketch8.addConstraint(Sketcher.Constraint("DistanceX", -1, 1, 1, 3, 6.393418))
pocket5 = body.newObject("PartDesign::Pocket", "Pocket004")
pocket5.Profile = sketch8
pocket5.Length = 10

sketch9 = body.newObject("Sketcher::SketchObject", "Sketch008")
sketch9.AttachmentSupport = (doc.getObject("XY_Plane"), [""])
sketch9.MapMode = "FlatFace"
sketch9.AttachmentOffset = App.Placement(Vector(0, 0, -45), App.Rotation())
add_polygon(sketch9, [(-34, 82), (-34, -26), (-39, -26), (-39, 82)])
sketch9.addConstraint(Sketcher.Constraint("Vertical", 0))
sketch9.addConstraint(Sketcher.Constraint("Horizontal", 1))
sketch9.addConstraint(Sketcher.Constraint("Vertical", 2))
sketch9.addConstraint(Sketcher.Constraint("Horizontal", 3))
sketch9.addConstraint(Sketcher.Constraint("DistanceX", 1, 2, 1, 1, 5.0))
sketch9.addConstraint(Sketcher.Constraint("DistanceY", 0, 2, 0, 1, 108.046698))
sketch9.addConstraint(Sketcher.Constraint("DistanceY", 0, 2, -1, 1, 25.606582))
sketch9.addConstraint(Sketcher.Constraint("DistanceX", 0, 2, -1, 1, 34.139483))
pad4 = body.newObject("PartDesign::Pad", "Pad003")
pad4.Profile = sketch9
pad4.Length = 17.5
pad4.Reversed = True
body2 = doc.addObject("PartDesign::Body", "Body001")

sketch10 = body2.newObject("Sketcher::SketchObject", "Sketch009")
sketch10.AttachmentSupport = (doc.getObject("YZ_Plane001"), [""])
sketch10.MapMode = "FlatFace"
sketch10.AttachmentOffset = App.Placement(Vector(0, 0, -60.139483), App.Rotation())
add_polygon(sketch10, [(82.4, -4), (79.4, -4), (79.4, -41), (82.4, -41)])
sketch10.addConstraint(Sketcher.Constraint("Horizontal", 0))
sketch10.addConstraint(Sketcher.Constraint("Vertical", 1))
sketch10.addConstraint(Sketcher.Constraint("Horizontal", 2))
sketch10.addConstraint(Sketcher.Constraint("Vertical", 3))
sketch10.addConstraint(Sketcher.Constraint("DistanceX", 0, 2, 0, 1, 3.0))
sketch10.addConstraint(Sketcher.Constraint("DistanceY", 1, 2, 1, 1, 37.0))
sketch10.addConstraint(Sketcher.Constraint("DistanceY", 0, 2, -1, 1, 4.0))
sketch10.addConstraint(Sketcher.Constraint("DistanceX", -1, 1, 0, 2, 79.393418))
pad5 = body2.newObject("PartDesign::Pad", "Pad004")
pad5.Profile = sketch10
pad5.Length = 5

doc.recompute()
